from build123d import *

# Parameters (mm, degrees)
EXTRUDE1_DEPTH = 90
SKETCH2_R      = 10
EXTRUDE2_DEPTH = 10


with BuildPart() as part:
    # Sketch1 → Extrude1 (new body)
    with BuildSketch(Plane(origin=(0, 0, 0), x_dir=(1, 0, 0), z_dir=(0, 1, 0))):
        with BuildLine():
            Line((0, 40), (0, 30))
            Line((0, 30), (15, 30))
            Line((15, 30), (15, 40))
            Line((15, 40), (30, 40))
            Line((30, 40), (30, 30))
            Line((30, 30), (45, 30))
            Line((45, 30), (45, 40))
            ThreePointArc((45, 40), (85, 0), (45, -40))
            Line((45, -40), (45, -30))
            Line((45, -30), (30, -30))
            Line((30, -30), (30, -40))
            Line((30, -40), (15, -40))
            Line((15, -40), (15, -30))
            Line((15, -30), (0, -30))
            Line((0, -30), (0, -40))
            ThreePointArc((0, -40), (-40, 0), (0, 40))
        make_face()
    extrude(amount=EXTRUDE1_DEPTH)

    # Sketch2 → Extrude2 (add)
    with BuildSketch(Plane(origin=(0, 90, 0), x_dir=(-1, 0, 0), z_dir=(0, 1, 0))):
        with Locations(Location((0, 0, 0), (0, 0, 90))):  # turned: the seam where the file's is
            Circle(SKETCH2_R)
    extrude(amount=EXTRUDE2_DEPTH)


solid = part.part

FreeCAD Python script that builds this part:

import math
import FreeCAD as App
import Part
import Sketcher
from FreeCAD import Vector

doc = App.newDocument("Part")
params = doc.addObject("Spreadsheet::Sheet", "Params")
for row, (alias, value) in enumerate([
    ("sketch1_radius", "40 mm"),
    ("sketch1_width", "15 mm"),
    ("sketch1_height", "10 mm"),
    ("pad1_length", "90 mm"),
    ("sketch2_diameter", "20 mm"),
    ("pad2_length", "10 mm"),
], start=1):
    params.set(f"A{row}", alias)
    params.set(f"B{row}", "=" + value)
    params.setAlias(f"B{row}", alias)

body = doc.addObject("PartDesign::Body", "Body")

sketch1 = body.newObject("Sketcher::SketchObject", "Sketch")
sketch1.AttachmentSupport = (doc.getObject("XZ_Plane"), [""])
sketch1.MapMode = "FlatFace"
sketch1.addGeometry(Part.LineSegment(Vector(0, -30, 0), Vector(0, -40, 0)), False)
sketch1.addGeometry(Part.ArcOfCircle(Part.Circle(Vector(0, 0, 0), Vector(0, 0, 1), 40), math.radians(90), math.radians(270)), False)
sketch1.addGeometry(Part.LineSegment(Vector(0, 40, 0), Vector(0, 30, 0)), False)
sketch1.addGeometry(Part.LineSegment(Vector(0, 30, 0), Vector(15, 30, 0)), False)
sketch1.addGeometry(Part.LineSegment(Vector(15, 30, 0), Vector(15, 40, 0)), False)
sketch1.addGeometry(Part.LineSegment(Vector(15, 40, 0), Vector(30, 40, 0)), False)
sketch1.addGeometry(Part.LineSegment(Vector(30, 40, 0), Vector(30, 30, 0)), False)
sketch1.addGeometry(Part.LineSegment(Vector(30, 30, 0), Vector(45, 30, 0)), False)
sketch1.addGeometry(Part.LineSegment(Vector(45, 30, 0), Vector(45, 40, 0)), False)
sketch1.addGeometry(Part.ArcOfCircle(Part.Circle(Vector(45, 0, 0), Vector(0, 0, 1), 40), math.radians(-90), math.radians(90)), False)
sketch1.addGeometry(Part.LineSegment(Vector(45, -40, 0), Vector(45, -30, 0)), False)
sketch1.addGeometry(Part.LineSegment(Vector(45, -30, 0), Vector(30, -30, 0)), False)
sketch1.addGeometry(Part.LineSegment(Vector(30, -30, 0), Vector(30, -40, 0)), False)
sketch1.addGeometry(Part.LineSegment(Vector(30, -40, 0), Vector(15, -40, 0)), False)
sketch1.addGeometry(Part.LineSegment(Vector(15, -40, 0), Vector(15, -30, 0)), False)
sketch1.addGeometry(Part.LineSegment(Vector(15, -30, 0), Vector(0, -30, 0)), False)
sketch1.addConstraint(Sketcher.Constraint("Coincident", 0, 2, 1, 2))
sketch1.addConstraint(Sketcher.Constraint("Coincident", 1, 1, 2, 1))
sketch1.addConstraint(Sketcher.Constraint("Coincident", 2, 2, 3, 1))
sketch1.addConstraint(Sketcher.Constraint("Coincident", 3, 2, 4, 1))
sketch1.addConstraint(Sketcher.Constraint("Coincident", 4, 2, 5, 1))
sketch1.addConstraint(Sketcher.Constraint("Coincident", 5, 2, 6, 1))
sketch1.addConstraint(Sketcher.Constraint("Coincident", 6, 2, 7, 1))
sketch1.addConstraint(Sketcher.Constraint("Coincident", 7, 2, 8, 1))
sketch1.addConstraint(Sketcher.Constraint("Coincident", 8, 2, 9, 2))
sketch1.addConstraint(Sketcher.Constraint("Coincident", 9, 1, 10, 1))
sketch1.addConstraint(Sketcher.Constraint("Coincident", 10, 2, 11, 1))
sketch1.addConstraint(Sketcher.Constraint("Coincident", 11, 2, 12, 1))
sketch1.addConstraint(Sketcher.Constraint("Coincident", 12, 2, 13, 1))
sketch1.addConstraint(Sketcher.Constraint("Coincident", 13, 2, 14, 1))
sketch1.addConstraint(Sketcher.Constraint("Coincident", 14, 2, 15, 1))
sketch1.addConstraint(Sketcher.Constraint("Coincident", 15, 2, 0, 1))
sketch1.addConstraint(Sketcher.Constraint("Vertical", 0))
sketch1.addConstraint(Sketcher.Constraint("Vertical", 2))
sketch1.addConstraint(Sketcher.Constraint("Horizontal", 3))
sketch1.addConstraint(Sketcher.Constraint("Vertical", 4))
sketch1.addConstraint(Sketcher.Constraint("Horizontal", 5))
sketch1.addConstraint(Sketcher.Constraint("Vertical", 6))
sketch1.addConstraint(Sketcher.Constraint("Horizontal", 7))
sketch1.addConstraint(Sketcher.Constraint("Vertical", 8))
sketch1.addConstraint(Sketcher.Constraint("Vertical", 10))
sketch1.addConstraint(Sketcher.Constraint("Horizontal", 11))
sketch1.addConstraint(Sketcher.Constraint("Vertical", 12))
sketch1.addConstraint(Sketcher.Constraint("Horizontal", 13))
sketch1.addConstraint(Sketcher.Constraint("Vertical", 14))
sketch1.addConstraint(Sketcher.Constraint("Horizontal", 15))
sketch1.addConstraint(Sketcher.Constraint("Coincident", 1, 3, -1, 1))
sketch1.addConstraint(Sketcher.Constraint("Equal", 1, 9))
sketch1.addConstraint(Sketcher.Constraint("Symmetric", 2, 2, 15, 2, -1, 1))
sketch1.addConstraint(Sketcher.Constraint("Symmetric", 8, 2, 9, 1, -1))
sketch1.addConstraint(Sketcher.Constraint("Symmetric", 6, 2, 11, 2, -1))
sketch1.addConstraint(Sketcher.Constraint("Symmetric", 4, 2, 13, 2, -1))
sketch1.addConstraint(Sketcher.Constraint("PointOnObject", 0, 2, -2))
sketch1.addConstraint(Sketcher.Constraint("Horizontal", 1, 1, 4, 2))
sketch1.addConstraint(Sketcher.Constraint("Horizontal", 3, 2, 6, 2))
sketch1.addConstraint(Sketcher.Constraint("Vertical", 9, 3, 7, 2))
sketch1.addConstraint(Sketcher.Constraint("Equal", 3, 5))
sketch1.addConstraint(Sketcher.Constraint("Equal", 5, 7))
sketch1.addConstraint(Sketcher.Constraint("Radius", 1, 40.0))
sketch1.addConstraint(Sketcher.Constraint("DistanceX", 3, 1, 3, 2, 15.0))
sketch1.addConstraint(Sketcher.Constraint("DistanceY", 0, 2, 0, 1, 10.0))
sketch1.setExpression("Constraints[42]", "Params.sketch1_radius")
sketch1.setExpression("Constraints[43]", "Params.sketch1_width")
sketch1.setExpression("Constraints[44]", "Params.sketch1_height")
pad1 = body.newObject("PartDesign::Pad", "Pad")
pad1.Profile = sketch1
pad1.setExpression("Length", "Params.pad1_length")
pad1.Reversed = True

sketch2 = body.newObject("Sketcher::SketchObject", "Sketch001")
sketch2.AttachmentSupport = (doc.getObject("XZ_Plane"), [""])
sketch2.MapMode = "FlatFace"
sketch2.AttachmentOffset = App.Placement(Vector(0, 0, -90), App.Rotation())
sketch2.addGeometry(Part.Circle(Vector(0, 0, 0), Vector(0, 0, 1), 10), False)
sketch2.addConstraint(Sketcher.Constraint("Coincident", 0, 3, -1, 1))
sketch2.addConstraint(Sketcher.Constraint("Diameter", 0, 20.0))
sketch2.setExpression("Constraints[1]", "Params.sketch2_diameter")
pad2 = body.newObject("PartDesign::Pad", "Pad001")
pad2.Profile = sketch2
pad2.setExpression("Length", "Params.pad2_length")
pad2.Reversed = True

doc.recompute()
